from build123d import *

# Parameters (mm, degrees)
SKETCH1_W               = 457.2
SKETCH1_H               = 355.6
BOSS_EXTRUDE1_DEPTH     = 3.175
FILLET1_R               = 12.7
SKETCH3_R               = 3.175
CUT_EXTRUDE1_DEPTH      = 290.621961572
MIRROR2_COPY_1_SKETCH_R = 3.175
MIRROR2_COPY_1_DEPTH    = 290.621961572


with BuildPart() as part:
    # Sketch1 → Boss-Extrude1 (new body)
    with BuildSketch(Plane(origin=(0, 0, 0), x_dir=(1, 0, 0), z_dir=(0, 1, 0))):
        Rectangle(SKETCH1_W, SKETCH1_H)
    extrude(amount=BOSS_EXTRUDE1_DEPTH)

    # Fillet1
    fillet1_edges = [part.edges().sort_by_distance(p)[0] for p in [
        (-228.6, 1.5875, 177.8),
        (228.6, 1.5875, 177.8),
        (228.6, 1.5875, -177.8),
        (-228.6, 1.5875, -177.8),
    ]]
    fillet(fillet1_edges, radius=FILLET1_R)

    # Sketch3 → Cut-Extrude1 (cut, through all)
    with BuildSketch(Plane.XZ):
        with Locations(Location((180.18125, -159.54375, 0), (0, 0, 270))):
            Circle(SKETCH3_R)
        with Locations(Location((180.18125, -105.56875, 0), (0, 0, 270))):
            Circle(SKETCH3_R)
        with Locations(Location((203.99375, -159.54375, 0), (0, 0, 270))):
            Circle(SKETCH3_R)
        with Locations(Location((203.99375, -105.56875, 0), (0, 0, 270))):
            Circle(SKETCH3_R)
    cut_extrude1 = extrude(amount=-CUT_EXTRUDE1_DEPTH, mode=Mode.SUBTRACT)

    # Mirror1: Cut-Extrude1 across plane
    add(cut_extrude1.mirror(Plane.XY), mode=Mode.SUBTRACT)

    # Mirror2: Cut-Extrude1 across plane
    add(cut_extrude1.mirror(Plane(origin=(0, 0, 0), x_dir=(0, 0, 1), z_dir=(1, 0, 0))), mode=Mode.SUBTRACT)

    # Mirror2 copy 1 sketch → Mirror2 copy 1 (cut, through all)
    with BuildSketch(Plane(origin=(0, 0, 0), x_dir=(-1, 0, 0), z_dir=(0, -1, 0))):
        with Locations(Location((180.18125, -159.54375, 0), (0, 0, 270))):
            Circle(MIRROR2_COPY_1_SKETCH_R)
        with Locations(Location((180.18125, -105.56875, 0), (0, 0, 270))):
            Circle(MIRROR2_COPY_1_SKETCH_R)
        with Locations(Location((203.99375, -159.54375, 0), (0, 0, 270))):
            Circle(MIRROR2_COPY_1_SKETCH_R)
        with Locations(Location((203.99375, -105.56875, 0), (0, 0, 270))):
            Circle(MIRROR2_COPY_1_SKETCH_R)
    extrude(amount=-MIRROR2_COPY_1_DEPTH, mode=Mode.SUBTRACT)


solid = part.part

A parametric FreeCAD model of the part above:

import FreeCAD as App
import Part
import Sketcher

V = App.Vector
Q = App.Units.Quantity


def edges_at(feature, points):
    """Names of the edges that pass closest to the given points."""
    edges = feature.Shape.Edges
    near = lambda p: min(range(len(edges)), key=lambda i: edges[i].distToShape(Part.Vertex(*p))[0])
    return sorted({f"Edge{near(p) + 1}" for p in points})


def add_polygon(sketch, points):
    """Adds a closed chain of lines whose ends are joined by coincident constraints."""
    first, n = sketch.GeometryCount, len(points)
    for a, b in zip(points, points[1:] + points[:1]):
        sketch.addGeometry(Part.LineSegment(App.Vector(*a, 0), App.Vector(*b, 0)), False)
    for i in range(n):
        sketch.addConstraint(Sketcher.Constraint("Coincident", first + i, 2, first + (i + 1) % n, 1))

doc = App.newDocument("Part")
params = doc.addObject("Spreadsheet::Sheet", "Params")
for row, (alias, value) in enumerate([
    ("sketch1_width", "18 in"),
    ("sketch1_height", "14 in"),
    ("pad1_length", "0.125 in"),
    ("fillet_radius", "0.5 in"),
    ("sketch2_diameter", "0.25 in"),
    ("sketch3_diameter", "0.25 in"),
], start=1):
    params.set(f"A{row}", alias)
    params.set(f"B{row}", "=" + value)
    params.setAlias(f"B{row}", alias)

body = doc.addObject("PartDesign::Body", "Body")

sketch1 = body.newObject("Sketcher::SketchObject", "Sketch")
sketch1.AttachmentSupport = (doc.getObject("XZ_Plane"), [""])
sketch1.MapMode = "FlatFace"
add_polygon(sketch1, [(-229, -178), (-229, 178), (229, 178), (229, -178)])
sketch1.addConstraint(Sketcher.Constraint("Vertical", 0))
sketch1.addConstraint(Sketcher.Constraint("Horizontal", 1))
sketch1.addConstraint(Sketcher.Constraint("Vertical", 2))
sketch1.addConstraint(Sketcher.Constraint("Horizontal", 3))
sketch1.addConstraint(Sketcher.Constraint("Symmetric", 0, 2, 2, 2, -1, 1))
sketch1.addConstraint(Sketcher.Constraint("DistanceX", 1, 1, 1, 2, Q("18 in")))
sketch1.addConstraint(Sketcher.Constraint("DistanceY", 0, 1, 0, 2, Q("14 in")))
sketch1.setExpression("Constraints[9]", "Params.sketch1_width")
sketch1.setExpression("Constraints[10]", "Params.sketch1_height")
pad1 = body.newObject("PartDesign::Pad", "Pad")
pad1.Profile = sketch1
pad1.setExpression("Length", "Params.pad1_length")
pad1.Reversed = True
doc.recompute()

fillet = body.newObject("PartDesign::Fillet", "Fillet")
fillet.Base = (pad1, edges_at(pad1, [
    (-228.6, 1.587, 177.8),
    (228.6, 1.587, 177.8),
    (228.6, 1.587, -177.8),
    (-228.6, 1.587, -177.8),
]))
fillet.setExpression("Radius", "Params.fillet_radius")

sketch2 = body.newObject("Sketcher::SketchObject", "Sketch001")
sketch2.AttachmentSupport = (doc.getObject("XZ_Plane"), [""])
sketch2.MapMode = "FlatFace"
sketch2.addGeometry(Part.Circle(V(180.2, -159.5, 0), V(0, 0, 1), 3.2), False)
sketch2.addGeometry(Part.Circle(V(180.2, -105.6, 0), V(0, 0, 1), 3.2), False)
sketch2.addGeometry(Part.Circle(V(204, -159.5, 0), V(0, 0, 1), 3.2), False)
sketch2.addGeometry(Part.Circle(V(204, -105.6, 0), V(0, 0, 1), 3.2), False)
sketch2.addConstraint(Sketcher.Constraint("Equal", 0, 1))
sketch2.addConstraint(Sketcher.Constraint("Equal", 1, 2))
sketch2.addConstraint(Sketcher.Constraint("Equal", 2, 3))
sketch2.addConstraint(Sketcher.Constraint("Horizontal", 0, 3, 2, 3))
sketch2.addConstraint(Sketcher.Constraint("Horizontal", 1, 3, 3, 3))
sketch2.addConstraint(Sketcher.Constraint("Vertical", 0, 3, 1, 3))
sketch2.addConstraint(Sketcher.Constraint("Vertical", 2, 3, 3, 3))
sketch2.addConstraint(Sketcher.Constraint("Diameter", 0, Q("0.25 in")))
sketch2.addConstraint(Sketcher.Constraint("DistanceX", -1, 1, 0, 3, Q("7.09375 in")))
sketch2.addConstraint(Sketcher.Constraint("DistanceY", 0, 3, -1, 1, Q("6.28125 in")))
sketch2.addConstraint(Sketcher.Constraint("DistanceY", 1, 3, -1, 1, Q("4.15625 in")))
sketch2.addConstraint(Sketcher.Constraint("DistanceX", -1, 1, 2, 3, Q("8.03125 in")))
sketch2.setExpression("Constraints[7]", "Params.sketch2_diameter")
pocket1 = body.newObject("PartDesign::Pocket", "Pocket")
pocket1.Profile = sketch2
pocket1.Type = "ThroughAll"
doc.recompute()

mirrored = body.newObject("PartDesign::Mirrored", "Mirrored")
mirrored.Originals = [pocket1]
mirrored.MirrorPlane = (doc.getObject("XY_Plane"), [""])
body.Tip = mirrored
doc.recompute()

mirrored2 = body.newObject("PartDesign::Mirrored", "Mirrored001")
mirrored2.Originals = [pocket1]
mirrored2.MirrorPlane = (doc.getObject("YZ_Plane"), [""])
body.Tip = mirrored2

sketch3 = body.newObject("Sketcher::SketchObject", "Sketch002")
sketch3.AttachmentSupport = (doc.getObject("XZ_Plane"), [""])
sketch3.MapMode = "FlatFace"
sketch3.addGeometry(Part.Circle(V(-180.2, 159.5, 0), V(0, 0, 1), 3.2), False)
sketch3.addGeometry(Part.Circle(V(-180.2, 105.6, 0), V(0, 0, 1), 3.2), False)
sketch3.addGeometry(Part.Circle(V(-204, 159.5, 0), V(0, 0, 1), 3.2), False)
sketch3.addGeometry(Part.Circle(V(-204, 105.6, 0), V(0, 0, 1), 3.2), False)
sketch3.addConstraint(Sketcher.Constraint("Equal", 0, 1))
sketch3.addConstraint(Sketcher.Constraint("Equal", 1, 2))
sketch3.addConstraint(Sketcher.Constraint("Equal", 2, 3))
sketch3.addConstraint(Sketcher.Constraint("Horizontal", 0, 3, 2, 3))
sketch3.addConstraint(Sketcher.Constraint("Horizontal", 1, 3, 3, 3))
sketch3.addConstraint(Sketcher.Constraint("Vertical", 0, 3, 1, 3))
sketch3.addConstraint(Sketcher.Constraint("Vertical", 2, 3, 3, 3))
sketch3.addConstraint(Sketcher.Constraint("Diameter", 0, Q("0.25 in")))
sketch3.addConstraint(Sketcher.Constraint("DistanceX", 0, 3, -1, 1, Q("7.09375 in")))
sketch3.addConstraint(Sketcher.Constraint("DistanceY", -1, 1, 0, 3, Q("6.28125 in")))
sketch3.addConstraint(Sketcher.Constraint("DistanceY", -1, 1, 1, 3, Q("4.15625 in")))
sketch3.addConstraint(Sketcher.Constraint("DistanceX", 2, 3, -1, 1, Q("8.03125 in")))
sketch3.setExpression("Constraints[7]", "Params.sketch3_diameter")
pocket2 = body.newObject("PartDesign::Pocket", "Pocket001")
pocket2.Profile = sketch3
pocket2.Type = "ThroughAll"

doc.recompute()
